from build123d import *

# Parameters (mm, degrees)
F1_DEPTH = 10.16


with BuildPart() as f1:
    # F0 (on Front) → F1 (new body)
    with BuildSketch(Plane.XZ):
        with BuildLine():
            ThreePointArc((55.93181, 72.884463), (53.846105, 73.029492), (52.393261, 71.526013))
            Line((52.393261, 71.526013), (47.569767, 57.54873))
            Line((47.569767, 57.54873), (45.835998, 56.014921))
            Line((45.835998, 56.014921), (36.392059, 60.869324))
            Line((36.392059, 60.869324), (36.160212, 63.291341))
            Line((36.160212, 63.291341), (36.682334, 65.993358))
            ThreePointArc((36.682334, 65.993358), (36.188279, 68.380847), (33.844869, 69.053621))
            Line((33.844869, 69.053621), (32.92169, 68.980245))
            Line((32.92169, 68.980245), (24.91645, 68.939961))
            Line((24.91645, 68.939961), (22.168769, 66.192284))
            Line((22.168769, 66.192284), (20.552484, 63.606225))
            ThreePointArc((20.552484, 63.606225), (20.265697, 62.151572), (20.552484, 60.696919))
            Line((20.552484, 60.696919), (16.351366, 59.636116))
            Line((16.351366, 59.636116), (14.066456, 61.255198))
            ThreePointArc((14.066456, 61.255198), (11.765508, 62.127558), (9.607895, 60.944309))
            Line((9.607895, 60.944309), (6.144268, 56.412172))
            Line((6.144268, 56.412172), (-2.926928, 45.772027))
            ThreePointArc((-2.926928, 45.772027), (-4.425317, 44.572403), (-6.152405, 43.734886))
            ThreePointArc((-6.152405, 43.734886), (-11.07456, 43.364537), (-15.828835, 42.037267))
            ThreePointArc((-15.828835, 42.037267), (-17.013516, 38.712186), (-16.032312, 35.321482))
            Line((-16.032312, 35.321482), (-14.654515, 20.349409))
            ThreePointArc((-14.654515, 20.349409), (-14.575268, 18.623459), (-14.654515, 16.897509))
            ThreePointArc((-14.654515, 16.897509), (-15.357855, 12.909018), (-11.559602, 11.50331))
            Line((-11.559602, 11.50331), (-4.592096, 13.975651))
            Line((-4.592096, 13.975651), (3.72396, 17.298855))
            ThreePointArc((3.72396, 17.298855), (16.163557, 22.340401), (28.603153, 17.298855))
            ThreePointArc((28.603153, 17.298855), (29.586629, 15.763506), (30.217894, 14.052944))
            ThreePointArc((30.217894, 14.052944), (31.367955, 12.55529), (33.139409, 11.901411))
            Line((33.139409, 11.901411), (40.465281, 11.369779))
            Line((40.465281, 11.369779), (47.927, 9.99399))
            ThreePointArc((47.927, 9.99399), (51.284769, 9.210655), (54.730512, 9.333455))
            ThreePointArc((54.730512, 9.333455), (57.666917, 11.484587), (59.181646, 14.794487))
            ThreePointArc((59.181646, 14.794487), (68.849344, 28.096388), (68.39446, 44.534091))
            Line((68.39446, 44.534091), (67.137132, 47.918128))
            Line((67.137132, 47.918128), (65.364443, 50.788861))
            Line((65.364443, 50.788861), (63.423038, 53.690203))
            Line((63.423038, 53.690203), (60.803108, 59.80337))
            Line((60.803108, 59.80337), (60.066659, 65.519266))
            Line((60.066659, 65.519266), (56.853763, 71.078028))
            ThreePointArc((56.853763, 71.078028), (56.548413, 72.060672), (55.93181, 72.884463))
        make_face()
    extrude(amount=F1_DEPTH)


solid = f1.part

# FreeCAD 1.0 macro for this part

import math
import FreeCAD as App
import Part
import Sketcher
Q = App.Units.Quantity

doc = App.newDocument("Part")
body = doc.addObject("PartDesign::Body", "Body")

# Sketch on XZ plane
sketch1 = body.newObject("Sketcher::SketchObject", "Sketch")
sketch1.AttachmentSupport = (doc.getObject("XZ_Plane"), [""])
sketch1.MapMode = "FlatFace"
sketch1.addGeometry(Part.ArcOfCircle(Part.Circle(App.Vector(54.733304, 70.718476, 0), App.Vector(0, 0, 1), 2.475463), math.radians(61.042916), math.radians(160.960705)), False)
sketch1.addGeometry(Part.LineSegment(App.Vector(52.393261, 71.526013, 0), App.Vector(47.569767, 57.54873, 0)), False)
sketch1.addGeometry(Part.LineSegment(App.Vector(47.569767, 57.54873, 0), App.Vector(45.835998, 56.014921, 0)), False)
sketch1.addGeometry(Part.LineSegment(App.Vector(45.835998, 56.014921, 0), App.Vector(36.392059, 60.869324, 0)), False)
sketch1.addGeometry(Part.LineSegment(App.Vector(36.392059, 60.869324, 0), App.Vector(36.160212, 63.291341, 0)), False)
sketch1.addGeometry(Part.LineSegment(App.Vector(36.160212, 63.291341, 0), App.Vector(36.682334, 65.993358, 0)), False)
sketch1.addGeometry(Part.ArcOfCircle(Part.Circle(App.Vector(34.45993, 66.778328, 0), App.Vector(0, 0, 1), 2.35696), math.radians(-19.453605), math.radians(105.126747)), False)
sketch1.addGeometry(Part.LineSegment(App.Vector(33.844869, 69.053621, 0), App.Vector(32.92169, 68.980245, 0)), False)
sketch1.addGeometry(Part.LineSegment(App.Vector(32.92169, 68.980245, 0), App.Vector(24.91645, 68.939961, 0)), False)
sketch1.addGeometry(Part.LineSegment(App.Vector(24.91645, 68.939961, 0), App.Vector(22.168769, 66.192284, 0)), False)
sketch1.addGeometry(Part.LineSegment(App.Vector(22.168769, 66.192284, 0), App.Vector(20.552484, 63.606225, 0)), False)
sketch1.addGeometry(Part.ArcOfCircle(Part.Circle(App.Vector(24.098266, 62.151572, 0), App.Vector(0, 0, 1), 3.832569), math.radians(157.694168), math.radians(202.305832)), False)
sketch1.addGeometry(Part.LineSegment(App.Vector(20.552484, 60.696919, 0), App.Vector(16.351366, 59.636116, 0)), False)
sketch1.addGeometry(Part.LineSegment(App.Vector(16.351366, 59.636116, 0), App.Vector(14.066456, 61.255198, 0)), False)
sketch1.addGeometry(Part.ArcOfCircle(Part.Circle(App.Vector(11.969919, 59.196031, 0), App.Vector(0, 0, 1), 2.938645), math.radians(44.48479), math.radians(143.492601)), False)
sketch1.addGeometry(Part.LineSegment(App.Vector(9.607895, 60.944309, 0), App.Vector(6.144268, 56.412172, 0)), False)
sketch1.addGeometry(Part.LineSegment(App.Vector(6.144268, 56.412172, 0), App.Vector(-2.926928, 45.772027, 0)), False)
sketch1.addGeometry(Part.ArcOfCircle(Part.Circle(App.Vector(-9.018962, 51.845683, 0), App.Vector(0, 0, 1), 8.602452), math.radians(-70.535327), math.radians(-44.913445)), False)
sketch1.addGeometry(Part.ArcOfCircle(Part.Circle(App.Vector(-6.740989, 18.663175, 0), App.Vector(0, 0, 1), 25.078619), math.radians(88.655171), math.radians(111.246079)), False)
sketch1.addGeometry(Part.ArcOfCircle(Part.Circle(App.Vector(-11.266116, 38.538049, 0), App.Vector(0, 0, 1), 5.750037), math.radians(142.514857), math.radians(214.014273)), False)
sketch1.addGeometry(Part.LineSegment(App.Vector(-16.032312, 35.321482, 0), App.Vector(-14.654515, 20.349409, 0)), False)
sketch1.addGeometry(Part.ArcOfCircle(Part.Circle(App.Vector(-33.409946, 18.623459, 0), App.Vector(0, 0, 1), 18.834678), math.radians(-5.257779), math.radians(5.257779)), False)
sketch1.addGeometry(Part.ArcOfCircle(Part.Circle(App.Vector(-12.616508, 14.481862, 0), App.Vector(0, 0, 1), 3.16051), math.radians(130.153299), math.radians(289.536659)), False)
sketch1.addGeometry(Part.LineSegment(App.Vector(-11.559602, 11.50331, 0), App.Vector(-4.592096, 13.975651, 0)), False)
sketch1.addGeometry(Part.LineSegment(App.Vector(-4.592096, 13.975651, 0), App.Vector(3.72396, 17.298855, 0)), False)
sketch1.addGeometry(Part.ArcOfCircle(Part.Circle(App.Vector(16.163556, 4.472792, 0), App.Vector(0, 0, 1), 17.867609), math.radians(45.876335), math.radians(134.123665)), False)
sketch1.addGeometry(Part.ArcOfCircle(Part.Circle(App.Vector(22.020139, 11.99941, 0), App.Vector(0, 0, 1), 8.451047), math.radians(14.063178), math.radians(38.83469)), False)
sketch1.addGeometry(Part.ArcOfCircle(Part.Circle(App.Vector(33.385689, 15.295122, 0), App.Vector(0, 0, 1), 3.402636), math.radians(-158.588508), math.radians(-94.150644)), False)
sketch1.addGeometry(Part.LineSegment(App.Vector(33.139409, 11.901411, 0), App.Vector(40.465281, 11.369779, 0)), False)
sketch1.addGeometry(Part.LineSegment(App.Vector(40.465281, 11.369779, 0), App.Vector(47.927, 9.99399, 0)), False)
sketch1.addGeometry(Part.ArcOfCircle(Part.Circle(App.Vector(52.546632, 22.207851, 0), App.Vector(0, 0, 1), 13.058308), math.radians(-110.718054), math.radians(-80.372578)), False)
sketch1.addGeometry(Part.ArcOfCircle(Part.Circle(App.Vector(52.067182, 16.048774, 0), App.Vector(0, 0, 1), 7.224184), math.radians(-68.366468), math.radians(-9.998554)), False)
sketch1.addGeometry(Part.ArcOfCircle(Part.Circle(App.Vector(44.475358, 35.647027, 0), App.Vector(0, 0, 1), 25.516726), math.radians(-54.806534), math.radians(20.382384)), False)
sketch1.addGeometry(Part.LineSegment(App.Vector(68.39446, 44.534091, 0), App.Vector(67.137132, 47.918128, 0)), False)
sketch1.addGeometry(Part.LineSegment(App.Vector(67.137132, 47.918128, 0), App.Vector(65.364443, 50.788861, 0)), False)
sketch1.addGeometry(Part.LineSegment(App.Vector(65.364443, 50.788861, 0), App.Vector(63.423038, 53.690203, 0)), False)
sketch1.addGeometry(Part.LineSegment(App.Vector(63.423038, 53.690203, 0), App.Vector(60.803108, 59.80337, 0)), False)
sketch1.addGeometry(Part.LineSegment(App.Vector(60.803108, 59.80337, 0), App.Vector(60.066659, 65.519266, 0)), False)
sketch1.addGeometry(Part.LineSegment(App.Vector(60.066659, 65.519266, 0), App.Vector(56.853763, 71.078028, 0)), False)
sketch1.addGeometry(Part.ArcOfCircle(Part.Circle(App.Vector(53.849569, 70.68326, 0), App.Vector(0, 0, 1), 3.03002), math.radians(7.486102), math.radians(46.590843)), False)
sketch1.addConstraint(Sketcher.Constraint("Coincident", 0, 2, 1, 1))
sketch1.addConstraint(Sketcher.Constraint("Coincident", 1, 2, 2, 1))
sketch1.addConstraint(Sketcher.Constraint("Coincident", 2, 2, 3, 1))
sketch1.addConstraint(Sketcher.Constraint("Coincident", 3, 2, 4, 1))
sketch1.addConstraint(Sketcher.Constraint("Coincident", 4, 2, 5, 1))
sketch1.addConstraint(Sketcher.Constraint("Coincident", 5, 2, 6, 1))
sketch1.addConstraint(Sketcher.Constraint("Coincident", 6, 2, 7, 1))
sketch1.addConstraint(Sketcher.Constraint("Coincident", 7, 2, 8, 1))
sketch1.addConstraint(Sketcher.Constraint("Coincident", 8, 2, 9, 1))
sketch1.addConstraint(Sketcher.Constraint("Coincident", 9, 2, 10, 1))
sketch1.addConstraint(Sketcher.Constraint("Coincident", 10, 2, 11, 1))
sketch1.addConstraint(Sketcher.Constraint("Coincident", 11, 2, 12, 1))
sketch1.addConstraint(Sketcher.Constraint("Coincident", 12, 2, 13, 1))
sketch1.addConstraint(Sketcher.Constraint("Coincident", 13, 2, 14, 1))
sketch1.addConstraint(Sketcher.Constraint("Coincident", 14, 2, 15, 1))
sketch1.addConstraint(Sketcher.Constraint("Coincident", 15, 2, 16, 1))
sketch1.addConstraint(Sketcher.Constraint("Coincident", 16, 2, 17, 2))
sketch1.addConstraint(Sketcher.Constraint("Coincident", 17, 1, 18, 1))
sketch1.addConstraint(Sketcher.Constraint("Coincident", 18, 2, 19, 1))
sketch1.addConstraint(Sketcher.Constraint("Coincident", 19, 2, 20, 1))
sketch1.addConstraint(Sketcher.Constraint("Coincident", 20, 2, 21, 2))
sketch1.addConstraint(Sketcher.Constraint("Coincident", 21, 1, 22, 1))
sketch1.addConstraint(Sketcher.Constraint("Coincident", 22, 2, 23, 1))
sketch1.addConstraint(Sketcher.Constraint("Coincident", 23, 2, 24, 1))
sketch1.addConstraint(Sketcher.Constraint("Coincident", 24, 2, 25, 2))
sketch1.addConstraint(Sketcher.Constraint("Coincident", 25, 1, 26, 2))
sketch1.addConstraint(Sketcher.Constraint("Coincident", 26, 1, 27, 1))
sketch1.addConstraint(Sketcher.Constraint("Coincident", 27, 2, 28, 1))
sketch1.addConstraint(Sketcher.Constraint("Coincident", 28, 2, 29, 1))
sketch1.addConstraint(Sketcher.Constraint("Coincident", 29, 2, 30, 1))
sketch1.addConstraint(Sketcher.Constraint("Coincident", 30, 2, 31, 1))
sketch1.addConstraint(Sketcher.Constraint("Coincident", 31, 2, 32, 1))
sketch1.addConstraint(Sketcher.Constraint("Coincident", 32, 2, 33, 1))
sketch1.addConstraint(Sketcher.Constraint("Coincident", 33, 2, 34, 1))
sketch1.addConstraint(Sketcher.Constraint("Coincident", 34, 2, 35, 1))
sketch1.addConstraint(Sketcher.Constraint("Coincident", 35, 2, 36, 1))
sketch1.addConstraint(Sketcher.Constraint("Coincident", 36, 2, 37, 1))
sketch1.addConstraint(Sketcher.Constraint("Coincident", 37, 2, 38, 1))
sketch1.addConstraint(Sketcher.Constraint("Coincident", 38, 2, 39, 1))
sketch1.addConstraint(Sketcher.Constraint("Coincident", 39, 2, 0, 1))
sketch1.addConstraint(Sketcher.Constraint("Radius", 6, 2.35696))
sketch1.addConstraint(Sketcher.Constraint("Radius", 11, 3.832569))
sketch1.addConstraint(Sketcher.Constraint("Radius", 17, 8.602452))
sketch1.addConstraint(Sketcher.Constraint("Radius", 18, 25.078619))
sketch1.addConstraint(Sketcher.Constraint("Radius", 21, 18.834678))
sketch1.addConstraint(Sketcher.Constraint("Radius", 22, 3.16051))
sketch1.addConstraint(Sketcher.Constraint("Radius", 25, 17.867609))
sketch1.addConstraint(Sketcher.Constraint("Radius", 39, 3.03002))
sketch1.addConstraint(Sketcher.Constraint("Radius", 0, 2.475463))
sketch1.addConstraint(Sketcher.Constraint("Radius", 14, 2.938645))
sketch1.addConstraint(Sketcher.Constraint("Radius", 19, 5.750037))
sketch1.addConstraint(Sketcher.Constraint("Radius", 26, 8.451047))
sketch1.addConstraint(Sketcher.Constraint("Radius", 27, 3.402636))
sketch1.addConstraint(Sketcher.Constraint("Radius", 30, 13.058308))
sketch1.addConstraint(Sketcher.Constraint("Radius", 31, 7.224184))
sketch1.addConstraint(Sketcher.Constraint("Radius", 32, 25.516726))
sketch1.addConstraint(Sketcher.Constraint("DistanceY", 14, 2, 10, 2, Q("0.1047998 in")))
sketch1.addConstraint(Sketcher.Constraint("DistanceY", 19, 3, 17, 1, Q("0.2045999 in")))
sketch1.addConstraint(Sketcher.Constraint("Distance", 5, 2.752001))
sketch1.addConstraint(Sketcher.Constraint("Distance", 13, 2.8004))
sketch1.addConstraint(Sketcher.Constraint("DistanceX", 22, 2, -1, 1, 11.559602))
sketch1.addConstraint(Sketcher.Constraint("DistanceX", -1, 1, 29, 2, 47.927))
sketch1.addConstraint(Sketcher.Constraint("DistanceY", 18, 3, 0, 3, 52.055301))
sketch1.addConstraint(Sketcher.Constraint("DistanceY", 32, 3, 6, 3, 31.131301))
sketch1.addConstraint(Sketcher.Constraint("DistanceX", 3, 2, 0, 2, 16.001202))
sketch1.addConstraint(Sketcher.Constraint("DistanceX", 9, 2, 6, 2, 11.6761))
sketch1.addConstraint(Sketcher.Constraint("DistanceX", 12, 2, 11, 3, 7.7469))
sketch1.addConstraint(Sketcher.Constraint("DistanceX", 17, 1, 14, 2, 15.7603))
sketch1.addConstraint(Sketcher.Constraint("DistanceY", 19, 2, 17, 3, 16.524201))
sketch1.addConstraint(Sketcher.Constraint("DistanceX", 20, 2, 19, 3, 3.388399))
sketch1.addConstraint(Sketcher.Constraint("DistanceY", 21, 1, 20, 2, 3.4519))
sketch1.addConstraint(Sketcher.Constraint("DistanceY", 22, 2, 21, 1, 5.394199))
sketch1.addConstraint(Sketcher.Constraint("DistanceY", 27, 2, 26, 3, 0.097999))
sketch1.addConstraint(Sketcher.Constraint("DistanceX", 28, 2, 31, 3, 11.601901))
sketch1.addConstraint(Sketcher.Constraint("DistanceX", 32, 3, 32, 2, 23.919102))
sketch1.addConstraint(Sketcher.Constraint("DistanceY", 33, 2, 1, 2, 9.630602))
sketch1.addConstraint(Sketcher.Constraint("DistanceY", 32, 3, 33, 2, 12.271101))
sketch1.addConstraint(Sketcher.Constraint("DistanceX", 0, 2, 37, 2, 7.673398))
sketch1.addConstraint(Sketcher.Constraint("Distance", 1, 14.78616))
sketch1.addConstraint(Sketcher.Constraint("Distance", 2, 2.314849))
sketch1.addConstraint(Sketcher.Constraint("Distance", 3, 10.618532))
sketch1.addConstraint(Sketcher.Constraint("Distance", 4, 2.433088))
sketch1.addConstraint(Sketcher.Constraint("Distance", 7, 0.92609))
sketch1.addConstraint(Sketcher.Constraint("Distance", 8, 8.005341))
sketch1.addConstraint(Sketcher.Constraint("Distance", 15, 5.704119))
sketch1.addConstraint(Sketcher.Constraint("Distance", 24, 8.955472))
sketch1.addConstraint(Sketcher.Constraint("Distance", 34, 3.373949))
sketch1.addConstraint(Sketcher.Constraint("Distance", 36, 6.650928))
sketch1.addConstraint(Sketcher.Constraint("DistanceX", -1, 1, 6, 3, 34.45993))
sketch1.addConstraint(Sketcher.Constraint("DistanceX", -1, 1, 14, 3, 11.969919))
sketch1.addConstraint(Sketcher.Constraint("DistanceY", -1, 1, 14, 3, 59.196031))
sketch1.addConstraint(Sketcher.Constraint("DistanceX", 18, 3, -1, 1, 6.740989))
sketch1.addConstraint(Sketcher.Constraint("DistanceY", -1, 1, 19, 3, 38.538049))
sketch1.addConstraint(Sketcher.Constraint("DistanceY", -1, 1, 21, 3, 18.623459))
sketch1.addConstraint(Sketcher.Constraint("DistanceY", -1, 1, 25, 3, 4.472792))
sketch1.addConstraint(Sketcher.Constraint("DistanceX", -1, 1, 26, 3, 22.020139))
sketch1.addConstraint(Sketcher.Constraint("DistanceY", -1, 1, 26, 3, 11.99941))
sketch1.addConstraint(Sketcher.Constraint("DistanceX", -1, 1, 27, 3, 33.385689))
sketch1.addConstraint(Sketcher.Constraint("DistanceY", -1, 1, 30, 3, 22.207851))
sketch1.addConstraint(Sketcher.Constraint("DistanceX", -1, 1, 31, 3, 52.067182))
sketch1.addConstraint(Sketcher.Constraint("DistanceX", -1, 1, 32, 3, 44.475358))
sketch1.addConstraint(Sketcher.Constraint("DistanceX", -1, 1, 39, 3, 53.849569))
sketch1.addConstraint(Sketcher.Constraint("DistanceY", -1, 1, 39, 3, 70.68326))
sketch1.addConstraint(Sketcher.Constraint("DistanceX", -1, 1, 0, 2, 52.393261))
sketch1.addConstraint(Sketcher.Constraint("DistanceY", -1, 1, 1, 2, 57.54873))
sketch1.addConstraint(Sketcher.Constraint("DistanceY", -1, 1, 2, 2, 56.014921))
sketch1.addConstraint(Sketcher.Constraint("DistanceY", -1, 1, 4, 2, 63.291341))
sketch1.addConstraint(Sketcher.Constraint("DistanceY", -1, 1, 5, 2, 65.993358))
sketch1.addConstraint(Sketcher.Constraint("DistanceX", -1, 1, 6, 2, 33.844869))
sketch1.addConstraint(Sketcher.Constraint("DistanceX", -1, 1, 7, 2, 32.92169))
sketch1.addConstraint(Sketcher.Constraint("DistanceX", -1, 1, 8, 2, 24.91645))
sketch1.addConstraint(Sketcher.Constraint("DistanceY", -1, 1, 11, 2, 60.696919))
sketch1.addConstraint(Sketcher.Constraint("DistanceY", -1, 1, 14, 2, 60.944309))
sketch1.addConstraint(Sketcher.Constraint("DistanceX", -1, 1, 15, 2, 6.144268))
sketch1.addConstraint(Sketcher.Constraint("DistanceX", 16, 2, -1, 1, 2.926928))
sketch1.addConstraint(Sketcher.Constraint("DistanceX", 19, 2, -1, 1, 16.032312))
sketch1.addConstraint(Sketcher.Constraint("DistanceY", -1, 1, 20, 2, 20.349409))
sketch1.addConstraint(Sketcher.Constraint("DistanceY", -1, 1, 23, 2, 13.975651))
sketch1.addConstraint(Sketcher.Constraint("DistanceX", -1, 1, 24, 2, 3.72396))
sketch1.addConstraint(Sketcher.Constraint("DistanceX", -1, 1, 27, 2, 33.139409))
sketch1.addConstraint(Sketcher.Constraint("DistanceY", -1, 1, 28, 2, 11.369779))
sketch1.addConstraint(Sketcher.Constraint("DistanceY", -1, 1, 29, 2, 9.99399))
sketch1.addConstraint(Sketcher.Constraint("DistanceX", -1, 1, 30, 2, 54.730512))
sketch1.addConstraint(Sketcher.Constraint("DistanceX", -1, 1, 33, 2, 67.137132))
sketch1.addConstraint(Sketcher.Constraint("DistanceY", -1, 1, 34, 2, 50.788861))
sketch1.addConstraint(Sketcher.Constraint("DistanceX", -1, 1, 36, 2, 60.803108))
sketch1.addConstraint(Sketcher.Constraint("DistanceY", -1, 1, 36, 2, 59.80337))
sketch1.addConstraint(Sketcher.Constraint("DistanceY", -1, 1, 38, 2, 71.078028))
sketch1.addConstraint(Sketcher.Constraint("DistanceY", 14, 3, 11, 3, 2.955541))
sketch1.addConstraint(Sketcher.Constraint("DistanceX", 17, 3, 14, 3, 20.988881))
sketch1.addConstraint(Sketcher.Constraint("DistanceX", 17, 3, 11, 3, 33.117228))
sketch1.addConstraint(Sketcher.Constraint("DistanceX", 17, 3, 25, 3, 25.182519))
sketch1.addConstraint(Sketcher.Constraint("DistanceY", 11, 3, 9, 2, 4.040712))
sketch1.addConstraint(Sketcher.Constraint("DistanceY", 12, 2, 10, 2, 3.970109))
sketch1.addConstraint(Sketcher.Constraint("DistanceY", 34, 2, 35, 2, 2.901342))
sketch1.addConstraint(Sketcher.Constraint("DistanceY", 37, 2, 0, 3, 5.19921))
pad1 = body.newObject("PartDesign::Pad", "Pad")
pad1.Profile = sketch1
pad1.Length = Q("0.4 in")

doc.recompute()
